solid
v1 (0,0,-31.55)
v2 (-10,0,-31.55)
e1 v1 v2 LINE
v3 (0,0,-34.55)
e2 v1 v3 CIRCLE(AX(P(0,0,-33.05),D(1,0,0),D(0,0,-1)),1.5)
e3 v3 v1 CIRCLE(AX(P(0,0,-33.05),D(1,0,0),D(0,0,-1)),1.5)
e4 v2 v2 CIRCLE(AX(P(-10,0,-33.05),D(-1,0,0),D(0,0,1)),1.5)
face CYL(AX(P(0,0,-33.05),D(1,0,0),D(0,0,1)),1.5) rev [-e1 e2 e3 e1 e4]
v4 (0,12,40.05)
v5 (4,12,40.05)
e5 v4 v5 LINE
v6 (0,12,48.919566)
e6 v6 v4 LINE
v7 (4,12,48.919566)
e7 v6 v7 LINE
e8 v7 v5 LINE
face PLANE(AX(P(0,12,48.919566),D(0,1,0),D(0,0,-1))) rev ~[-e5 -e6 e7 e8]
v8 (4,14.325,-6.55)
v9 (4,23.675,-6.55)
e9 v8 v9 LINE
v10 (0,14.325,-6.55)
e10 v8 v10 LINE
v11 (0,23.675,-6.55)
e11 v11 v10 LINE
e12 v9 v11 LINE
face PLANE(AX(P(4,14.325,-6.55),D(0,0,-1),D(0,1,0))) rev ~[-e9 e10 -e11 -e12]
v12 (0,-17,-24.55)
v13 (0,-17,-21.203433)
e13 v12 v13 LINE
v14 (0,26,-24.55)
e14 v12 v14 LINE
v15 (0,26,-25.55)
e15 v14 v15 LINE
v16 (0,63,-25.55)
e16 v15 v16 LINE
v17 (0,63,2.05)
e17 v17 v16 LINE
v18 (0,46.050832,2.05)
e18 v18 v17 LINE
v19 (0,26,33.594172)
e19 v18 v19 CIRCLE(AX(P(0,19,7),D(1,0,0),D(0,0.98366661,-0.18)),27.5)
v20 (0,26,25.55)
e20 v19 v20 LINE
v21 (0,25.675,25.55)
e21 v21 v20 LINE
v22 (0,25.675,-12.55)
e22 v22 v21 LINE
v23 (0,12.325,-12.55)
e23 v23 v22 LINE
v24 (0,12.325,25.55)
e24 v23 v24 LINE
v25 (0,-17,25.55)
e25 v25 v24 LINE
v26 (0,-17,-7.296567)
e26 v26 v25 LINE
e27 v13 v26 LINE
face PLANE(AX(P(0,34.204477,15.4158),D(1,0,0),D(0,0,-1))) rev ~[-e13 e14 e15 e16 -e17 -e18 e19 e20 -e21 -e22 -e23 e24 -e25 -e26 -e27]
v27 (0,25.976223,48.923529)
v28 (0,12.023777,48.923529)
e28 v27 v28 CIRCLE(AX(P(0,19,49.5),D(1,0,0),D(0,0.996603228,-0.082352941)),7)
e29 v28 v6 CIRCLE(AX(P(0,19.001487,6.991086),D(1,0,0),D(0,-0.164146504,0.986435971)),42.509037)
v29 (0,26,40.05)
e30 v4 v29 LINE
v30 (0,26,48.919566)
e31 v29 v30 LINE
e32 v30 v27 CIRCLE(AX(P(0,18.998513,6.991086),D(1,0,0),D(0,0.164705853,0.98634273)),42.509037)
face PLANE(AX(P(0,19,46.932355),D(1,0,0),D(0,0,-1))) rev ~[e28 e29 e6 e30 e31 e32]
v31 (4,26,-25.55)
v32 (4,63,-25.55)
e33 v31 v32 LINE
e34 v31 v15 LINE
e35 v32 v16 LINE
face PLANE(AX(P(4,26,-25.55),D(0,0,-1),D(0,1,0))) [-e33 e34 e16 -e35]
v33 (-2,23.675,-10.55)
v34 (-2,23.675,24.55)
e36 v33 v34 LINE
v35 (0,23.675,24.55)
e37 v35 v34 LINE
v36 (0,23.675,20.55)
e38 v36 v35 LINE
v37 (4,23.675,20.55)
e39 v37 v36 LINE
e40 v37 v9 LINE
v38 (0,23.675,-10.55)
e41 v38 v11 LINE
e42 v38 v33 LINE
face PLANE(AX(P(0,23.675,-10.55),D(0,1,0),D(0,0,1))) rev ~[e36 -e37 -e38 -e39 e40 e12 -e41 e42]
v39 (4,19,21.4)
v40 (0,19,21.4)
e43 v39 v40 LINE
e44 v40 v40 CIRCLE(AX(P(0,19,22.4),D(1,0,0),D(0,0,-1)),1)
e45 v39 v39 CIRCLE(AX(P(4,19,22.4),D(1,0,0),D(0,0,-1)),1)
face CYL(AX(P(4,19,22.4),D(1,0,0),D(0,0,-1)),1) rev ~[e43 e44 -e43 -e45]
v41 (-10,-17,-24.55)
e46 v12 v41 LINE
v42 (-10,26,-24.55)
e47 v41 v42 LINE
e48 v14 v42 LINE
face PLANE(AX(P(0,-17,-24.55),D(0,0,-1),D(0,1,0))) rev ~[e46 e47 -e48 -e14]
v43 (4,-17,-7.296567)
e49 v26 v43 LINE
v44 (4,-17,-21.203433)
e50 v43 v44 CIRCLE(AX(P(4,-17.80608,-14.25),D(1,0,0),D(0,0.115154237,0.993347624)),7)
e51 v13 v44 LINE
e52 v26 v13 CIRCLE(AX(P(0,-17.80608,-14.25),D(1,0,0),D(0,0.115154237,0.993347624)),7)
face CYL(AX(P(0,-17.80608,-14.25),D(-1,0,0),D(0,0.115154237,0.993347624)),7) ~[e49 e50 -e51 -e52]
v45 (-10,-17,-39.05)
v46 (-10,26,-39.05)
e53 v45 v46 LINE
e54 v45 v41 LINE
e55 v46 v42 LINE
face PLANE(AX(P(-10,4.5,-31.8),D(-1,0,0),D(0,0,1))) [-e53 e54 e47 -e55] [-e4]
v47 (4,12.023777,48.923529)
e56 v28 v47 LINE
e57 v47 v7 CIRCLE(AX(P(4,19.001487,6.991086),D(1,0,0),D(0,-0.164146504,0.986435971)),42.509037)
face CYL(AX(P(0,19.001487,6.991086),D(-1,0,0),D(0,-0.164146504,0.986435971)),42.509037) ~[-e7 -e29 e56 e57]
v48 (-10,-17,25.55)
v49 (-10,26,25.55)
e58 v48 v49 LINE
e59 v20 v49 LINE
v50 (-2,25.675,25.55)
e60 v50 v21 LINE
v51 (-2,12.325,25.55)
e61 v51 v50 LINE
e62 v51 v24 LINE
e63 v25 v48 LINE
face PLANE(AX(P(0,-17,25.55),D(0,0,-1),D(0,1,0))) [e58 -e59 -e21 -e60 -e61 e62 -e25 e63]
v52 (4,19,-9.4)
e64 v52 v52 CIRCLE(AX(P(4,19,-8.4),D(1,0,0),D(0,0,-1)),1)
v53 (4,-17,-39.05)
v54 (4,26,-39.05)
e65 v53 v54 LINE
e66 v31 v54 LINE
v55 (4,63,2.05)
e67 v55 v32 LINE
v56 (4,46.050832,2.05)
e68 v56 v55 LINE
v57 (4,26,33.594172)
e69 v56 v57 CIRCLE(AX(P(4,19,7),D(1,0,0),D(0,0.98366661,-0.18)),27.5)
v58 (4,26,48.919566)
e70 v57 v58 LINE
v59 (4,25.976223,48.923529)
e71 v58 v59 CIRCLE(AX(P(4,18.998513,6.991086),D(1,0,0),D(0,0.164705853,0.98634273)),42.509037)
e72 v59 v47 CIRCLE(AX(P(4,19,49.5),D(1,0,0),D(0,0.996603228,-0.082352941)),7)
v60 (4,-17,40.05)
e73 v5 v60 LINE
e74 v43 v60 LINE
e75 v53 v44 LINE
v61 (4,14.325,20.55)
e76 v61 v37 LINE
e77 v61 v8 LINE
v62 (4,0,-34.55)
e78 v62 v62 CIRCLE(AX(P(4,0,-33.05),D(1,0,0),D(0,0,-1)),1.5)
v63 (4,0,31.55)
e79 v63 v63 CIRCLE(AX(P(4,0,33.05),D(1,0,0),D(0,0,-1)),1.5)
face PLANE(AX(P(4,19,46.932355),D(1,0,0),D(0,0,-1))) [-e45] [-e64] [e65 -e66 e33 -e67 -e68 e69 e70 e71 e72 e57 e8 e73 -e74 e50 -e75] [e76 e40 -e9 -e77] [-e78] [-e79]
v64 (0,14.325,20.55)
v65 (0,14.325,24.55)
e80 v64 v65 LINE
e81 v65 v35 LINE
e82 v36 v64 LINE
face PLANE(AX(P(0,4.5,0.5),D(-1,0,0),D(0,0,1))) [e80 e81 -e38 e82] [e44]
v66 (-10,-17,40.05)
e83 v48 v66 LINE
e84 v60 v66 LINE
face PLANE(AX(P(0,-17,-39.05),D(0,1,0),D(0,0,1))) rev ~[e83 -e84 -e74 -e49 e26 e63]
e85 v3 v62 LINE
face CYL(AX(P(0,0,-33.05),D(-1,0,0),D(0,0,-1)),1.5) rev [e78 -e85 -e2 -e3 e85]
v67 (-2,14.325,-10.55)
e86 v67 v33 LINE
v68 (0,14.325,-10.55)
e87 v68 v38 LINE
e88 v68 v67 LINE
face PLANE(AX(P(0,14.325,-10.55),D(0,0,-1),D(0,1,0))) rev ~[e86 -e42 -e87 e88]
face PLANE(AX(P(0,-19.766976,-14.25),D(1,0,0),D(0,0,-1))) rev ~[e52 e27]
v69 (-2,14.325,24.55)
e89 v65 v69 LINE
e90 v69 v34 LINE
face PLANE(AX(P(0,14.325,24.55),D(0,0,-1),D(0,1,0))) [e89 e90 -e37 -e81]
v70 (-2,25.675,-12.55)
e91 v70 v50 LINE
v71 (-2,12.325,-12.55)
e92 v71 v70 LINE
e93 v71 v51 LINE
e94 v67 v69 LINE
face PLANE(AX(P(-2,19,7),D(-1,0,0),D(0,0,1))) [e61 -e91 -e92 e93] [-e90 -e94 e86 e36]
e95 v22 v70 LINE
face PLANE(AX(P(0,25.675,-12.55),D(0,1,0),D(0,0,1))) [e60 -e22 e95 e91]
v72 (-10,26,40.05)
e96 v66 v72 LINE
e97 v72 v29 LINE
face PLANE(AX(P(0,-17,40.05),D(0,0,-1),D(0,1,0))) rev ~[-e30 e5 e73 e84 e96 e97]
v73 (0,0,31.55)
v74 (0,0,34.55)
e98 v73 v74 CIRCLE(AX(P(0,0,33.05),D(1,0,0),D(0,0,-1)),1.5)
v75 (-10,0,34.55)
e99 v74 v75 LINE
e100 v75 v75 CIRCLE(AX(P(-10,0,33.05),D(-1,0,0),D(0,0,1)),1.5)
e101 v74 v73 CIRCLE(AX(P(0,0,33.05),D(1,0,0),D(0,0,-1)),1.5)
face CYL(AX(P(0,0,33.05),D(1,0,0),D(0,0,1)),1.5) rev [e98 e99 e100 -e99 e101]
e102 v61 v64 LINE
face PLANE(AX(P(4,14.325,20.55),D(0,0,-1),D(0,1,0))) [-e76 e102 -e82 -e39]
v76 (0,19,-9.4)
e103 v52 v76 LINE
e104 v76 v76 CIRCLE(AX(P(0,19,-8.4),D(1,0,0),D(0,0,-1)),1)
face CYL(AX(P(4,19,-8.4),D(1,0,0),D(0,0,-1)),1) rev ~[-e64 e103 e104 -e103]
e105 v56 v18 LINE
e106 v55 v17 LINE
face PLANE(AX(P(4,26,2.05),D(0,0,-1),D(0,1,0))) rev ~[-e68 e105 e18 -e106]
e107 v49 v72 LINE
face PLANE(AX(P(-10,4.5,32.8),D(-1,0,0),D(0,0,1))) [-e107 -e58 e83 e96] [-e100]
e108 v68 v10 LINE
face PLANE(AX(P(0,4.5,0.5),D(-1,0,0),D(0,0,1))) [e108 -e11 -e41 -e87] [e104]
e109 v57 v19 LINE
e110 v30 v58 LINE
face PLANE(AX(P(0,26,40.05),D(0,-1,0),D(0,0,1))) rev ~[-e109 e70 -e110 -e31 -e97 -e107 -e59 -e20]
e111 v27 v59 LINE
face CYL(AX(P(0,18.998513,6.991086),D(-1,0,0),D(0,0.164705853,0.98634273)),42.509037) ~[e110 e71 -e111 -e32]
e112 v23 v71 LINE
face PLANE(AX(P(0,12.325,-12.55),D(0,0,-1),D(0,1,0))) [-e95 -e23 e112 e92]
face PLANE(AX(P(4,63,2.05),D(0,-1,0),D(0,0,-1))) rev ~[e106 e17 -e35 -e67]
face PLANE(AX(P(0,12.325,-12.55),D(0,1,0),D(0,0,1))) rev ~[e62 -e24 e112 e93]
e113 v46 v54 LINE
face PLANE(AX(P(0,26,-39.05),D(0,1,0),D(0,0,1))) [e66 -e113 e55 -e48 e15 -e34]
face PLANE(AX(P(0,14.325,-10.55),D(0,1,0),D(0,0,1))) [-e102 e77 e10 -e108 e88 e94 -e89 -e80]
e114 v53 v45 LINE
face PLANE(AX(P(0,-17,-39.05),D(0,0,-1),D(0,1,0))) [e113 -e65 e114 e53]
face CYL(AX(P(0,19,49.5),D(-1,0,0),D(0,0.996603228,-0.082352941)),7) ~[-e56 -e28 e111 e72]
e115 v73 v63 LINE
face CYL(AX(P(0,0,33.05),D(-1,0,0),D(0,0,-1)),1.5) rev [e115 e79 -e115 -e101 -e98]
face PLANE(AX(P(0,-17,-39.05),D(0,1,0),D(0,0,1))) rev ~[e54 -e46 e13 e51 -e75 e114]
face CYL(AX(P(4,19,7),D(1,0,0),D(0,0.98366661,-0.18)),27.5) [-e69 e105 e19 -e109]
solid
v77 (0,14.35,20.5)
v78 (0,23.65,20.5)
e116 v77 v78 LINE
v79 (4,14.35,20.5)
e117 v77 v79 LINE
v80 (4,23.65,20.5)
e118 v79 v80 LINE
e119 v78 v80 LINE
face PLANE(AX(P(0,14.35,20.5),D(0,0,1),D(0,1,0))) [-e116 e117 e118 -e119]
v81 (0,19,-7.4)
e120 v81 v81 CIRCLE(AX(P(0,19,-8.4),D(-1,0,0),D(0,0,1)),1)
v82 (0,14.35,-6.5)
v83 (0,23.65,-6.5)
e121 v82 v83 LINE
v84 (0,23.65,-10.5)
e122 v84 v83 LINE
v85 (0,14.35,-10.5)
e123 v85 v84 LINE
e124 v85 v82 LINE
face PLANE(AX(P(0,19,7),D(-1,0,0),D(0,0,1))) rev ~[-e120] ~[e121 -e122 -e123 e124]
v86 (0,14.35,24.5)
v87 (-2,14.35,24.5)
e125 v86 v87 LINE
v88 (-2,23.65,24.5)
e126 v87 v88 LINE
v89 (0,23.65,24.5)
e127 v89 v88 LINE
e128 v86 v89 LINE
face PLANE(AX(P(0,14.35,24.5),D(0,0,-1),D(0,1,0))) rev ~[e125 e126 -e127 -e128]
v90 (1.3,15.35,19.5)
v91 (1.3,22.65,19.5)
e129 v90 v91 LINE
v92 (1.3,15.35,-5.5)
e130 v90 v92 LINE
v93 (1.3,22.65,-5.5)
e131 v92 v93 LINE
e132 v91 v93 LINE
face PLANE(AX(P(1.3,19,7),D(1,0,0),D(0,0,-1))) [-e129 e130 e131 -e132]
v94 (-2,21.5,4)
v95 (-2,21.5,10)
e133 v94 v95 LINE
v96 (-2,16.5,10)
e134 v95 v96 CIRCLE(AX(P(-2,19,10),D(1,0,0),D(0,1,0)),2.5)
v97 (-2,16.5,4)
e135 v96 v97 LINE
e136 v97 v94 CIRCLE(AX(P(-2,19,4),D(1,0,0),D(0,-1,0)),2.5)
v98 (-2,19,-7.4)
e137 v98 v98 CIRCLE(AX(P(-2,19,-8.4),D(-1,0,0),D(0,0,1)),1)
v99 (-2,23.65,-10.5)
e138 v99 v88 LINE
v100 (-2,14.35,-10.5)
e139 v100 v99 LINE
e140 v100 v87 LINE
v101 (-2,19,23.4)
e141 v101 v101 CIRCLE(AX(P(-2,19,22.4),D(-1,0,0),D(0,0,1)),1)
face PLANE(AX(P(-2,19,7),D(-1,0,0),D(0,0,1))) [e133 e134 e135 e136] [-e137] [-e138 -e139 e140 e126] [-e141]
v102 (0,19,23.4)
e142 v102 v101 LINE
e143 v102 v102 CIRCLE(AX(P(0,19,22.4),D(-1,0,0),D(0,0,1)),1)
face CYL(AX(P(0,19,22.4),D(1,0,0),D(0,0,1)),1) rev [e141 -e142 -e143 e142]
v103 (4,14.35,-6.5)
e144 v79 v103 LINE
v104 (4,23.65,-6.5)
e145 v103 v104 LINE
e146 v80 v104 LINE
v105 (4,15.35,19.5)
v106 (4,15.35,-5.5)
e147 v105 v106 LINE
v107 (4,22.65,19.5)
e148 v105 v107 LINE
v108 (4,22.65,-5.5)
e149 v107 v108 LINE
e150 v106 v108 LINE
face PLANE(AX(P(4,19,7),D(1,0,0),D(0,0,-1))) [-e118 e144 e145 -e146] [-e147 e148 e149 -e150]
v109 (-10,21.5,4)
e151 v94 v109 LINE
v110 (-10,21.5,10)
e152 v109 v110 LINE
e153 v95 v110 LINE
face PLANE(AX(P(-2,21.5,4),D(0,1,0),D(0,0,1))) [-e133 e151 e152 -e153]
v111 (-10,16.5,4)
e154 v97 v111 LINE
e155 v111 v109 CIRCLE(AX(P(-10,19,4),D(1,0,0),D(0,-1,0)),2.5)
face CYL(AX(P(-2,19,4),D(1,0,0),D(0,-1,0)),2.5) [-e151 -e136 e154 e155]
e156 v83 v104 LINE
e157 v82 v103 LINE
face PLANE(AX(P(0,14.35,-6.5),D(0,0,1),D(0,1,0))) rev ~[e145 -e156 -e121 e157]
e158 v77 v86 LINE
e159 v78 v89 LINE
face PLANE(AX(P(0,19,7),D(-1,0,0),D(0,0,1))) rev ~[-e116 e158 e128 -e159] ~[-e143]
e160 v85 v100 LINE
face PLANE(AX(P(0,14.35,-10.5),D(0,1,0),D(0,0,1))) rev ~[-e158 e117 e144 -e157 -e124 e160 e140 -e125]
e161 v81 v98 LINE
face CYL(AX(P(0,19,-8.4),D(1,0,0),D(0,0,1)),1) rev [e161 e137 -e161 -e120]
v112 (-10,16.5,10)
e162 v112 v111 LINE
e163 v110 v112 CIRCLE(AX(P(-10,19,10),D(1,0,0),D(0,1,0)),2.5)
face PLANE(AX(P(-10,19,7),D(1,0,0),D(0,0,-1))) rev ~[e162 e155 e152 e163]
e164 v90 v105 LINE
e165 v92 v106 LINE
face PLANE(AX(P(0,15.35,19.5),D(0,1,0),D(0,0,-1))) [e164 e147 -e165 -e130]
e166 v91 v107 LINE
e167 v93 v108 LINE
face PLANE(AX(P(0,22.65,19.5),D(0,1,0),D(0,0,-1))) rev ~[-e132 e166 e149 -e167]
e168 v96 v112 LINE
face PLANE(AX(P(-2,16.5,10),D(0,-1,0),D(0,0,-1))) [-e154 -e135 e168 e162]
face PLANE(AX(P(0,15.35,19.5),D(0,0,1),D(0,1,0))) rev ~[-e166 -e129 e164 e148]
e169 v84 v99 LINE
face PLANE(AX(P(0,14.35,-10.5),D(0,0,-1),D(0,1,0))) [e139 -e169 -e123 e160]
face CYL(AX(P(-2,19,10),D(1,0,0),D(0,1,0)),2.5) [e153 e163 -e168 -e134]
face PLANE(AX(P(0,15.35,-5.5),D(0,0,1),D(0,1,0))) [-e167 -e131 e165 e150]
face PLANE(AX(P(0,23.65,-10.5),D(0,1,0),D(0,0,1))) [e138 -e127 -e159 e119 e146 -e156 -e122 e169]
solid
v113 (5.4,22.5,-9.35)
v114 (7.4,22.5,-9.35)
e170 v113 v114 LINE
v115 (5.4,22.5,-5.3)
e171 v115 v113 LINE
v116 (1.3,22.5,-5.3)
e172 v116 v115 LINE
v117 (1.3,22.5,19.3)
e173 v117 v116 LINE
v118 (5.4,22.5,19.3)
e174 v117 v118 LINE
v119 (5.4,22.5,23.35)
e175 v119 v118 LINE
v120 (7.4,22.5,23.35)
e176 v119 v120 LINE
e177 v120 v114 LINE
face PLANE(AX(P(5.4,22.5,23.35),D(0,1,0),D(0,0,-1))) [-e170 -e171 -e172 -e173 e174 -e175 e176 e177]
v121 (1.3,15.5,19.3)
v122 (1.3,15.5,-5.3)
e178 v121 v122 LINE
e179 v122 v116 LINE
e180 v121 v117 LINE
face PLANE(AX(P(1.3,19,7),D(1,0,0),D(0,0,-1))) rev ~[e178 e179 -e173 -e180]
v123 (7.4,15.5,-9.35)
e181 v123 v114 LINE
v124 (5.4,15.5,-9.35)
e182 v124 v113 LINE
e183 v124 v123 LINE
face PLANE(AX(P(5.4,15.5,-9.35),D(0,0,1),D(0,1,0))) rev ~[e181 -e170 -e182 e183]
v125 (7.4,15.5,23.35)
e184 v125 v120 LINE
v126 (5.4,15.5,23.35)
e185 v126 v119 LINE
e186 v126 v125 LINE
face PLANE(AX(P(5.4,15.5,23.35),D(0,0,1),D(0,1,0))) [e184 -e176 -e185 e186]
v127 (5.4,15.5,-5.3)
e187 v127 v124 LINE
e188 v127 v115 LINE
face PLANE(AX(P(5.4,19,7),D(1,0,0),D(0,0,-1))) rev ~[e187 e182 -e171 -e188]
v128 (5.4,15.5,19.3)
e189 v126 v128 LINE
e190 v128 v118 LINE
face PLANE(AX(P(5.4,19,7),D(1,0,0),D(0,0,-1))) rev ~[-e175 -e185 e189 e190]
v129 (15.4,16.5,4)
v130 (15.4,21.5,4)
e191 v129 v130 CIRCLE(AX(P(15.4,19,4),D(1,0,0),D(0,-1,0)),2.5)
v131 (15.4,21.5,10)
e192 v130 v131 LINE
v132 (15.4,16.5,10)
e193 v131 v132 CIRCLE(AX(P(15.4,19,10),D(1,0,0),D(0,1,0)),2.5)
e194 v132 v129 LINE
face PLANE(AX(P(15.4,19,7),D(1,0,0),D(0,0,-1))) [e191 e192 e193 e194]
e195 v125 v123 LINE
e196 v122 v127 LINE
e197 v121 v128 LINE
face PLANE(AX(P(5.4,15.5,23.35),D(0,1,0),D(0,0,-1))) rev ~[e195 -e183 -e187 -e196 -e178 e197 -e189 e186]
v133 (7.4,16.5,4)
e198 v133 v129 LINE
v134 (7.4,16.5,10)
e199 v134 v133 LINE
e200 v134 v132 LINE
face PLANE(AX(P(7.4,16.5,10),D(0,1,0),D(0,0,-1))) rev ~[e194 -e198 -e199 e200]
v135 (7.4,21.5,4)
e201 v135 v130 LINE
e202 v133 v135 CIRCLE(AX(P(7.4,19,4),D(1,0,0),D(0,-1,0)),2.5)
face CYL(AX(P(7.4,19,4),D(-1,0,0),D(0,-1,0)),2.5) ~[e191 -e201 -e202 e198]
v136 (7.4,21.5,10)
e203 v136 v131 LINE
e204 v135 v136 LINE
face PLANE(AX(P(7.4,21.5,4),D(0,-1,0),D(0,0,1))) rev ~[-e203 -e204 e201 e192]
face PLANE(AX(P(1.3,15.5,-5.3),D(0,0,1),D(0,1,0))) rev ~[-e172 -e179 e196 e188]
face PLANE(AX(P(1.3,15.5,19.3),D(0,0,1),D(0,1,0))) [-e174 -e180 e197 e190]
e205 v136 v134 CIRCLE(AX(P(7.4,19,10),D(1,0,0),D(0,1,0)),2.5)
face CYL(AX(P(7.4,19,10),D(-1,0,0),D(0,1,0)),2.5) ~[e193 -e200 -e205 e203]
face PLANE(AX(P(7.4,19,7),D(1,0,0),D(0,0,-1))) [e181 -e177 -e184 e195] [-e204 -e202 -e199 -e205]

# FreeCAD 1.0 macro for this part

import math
import FreeCAD as App
import Part
import Sketcher
Q = App.Units.Quantity

doc = App.newDocument("Part")
body = doc.addObject("PartDesign::Body", "Body")

sketch1 = doc.addObject("Sketcher::SketchObject", "Sketch")
body.addObject(sketch1)
sketch1.AttachmentSupport = (doc.YZ_Plane, [""])
sketch1.MapMode = "FlatFace"
sketch1.addGeometry(Part.LineSegment(App.Vector(-17, -39, 0), App.Vector(26, -39, 0)), False)
sketch1.addGeometry(Part.LineSegment(App.Vector(26, -39, 0), App.Vector(26, 40, 0)), False)
sketch1.addGeometry(Part.LineSegment(App.Vector(26, 40, 0), App.Vector(-17, 40, 0)), False)
sketch1.addGeometry(Part.LineSegment(App.Vector(-17, 40, 0), App.Vector(-17, -39, 0)), False)
sketch1.addGeometry(Part.Circle(App.Vector(0, -33, 0), App.Vector(0, 0, 1), 1.5), False)
sketch1.addGeometry(Part.Circle(App.Vector(0, 33, 0), App.Vector(0, 0, 1), 1.5), False)
sketch1.addConstraint(Sketcher.Constraint("Coincident", 0, 2, 1, 1))
sketch1.addConstraint(Sketcher.Constraint("Coincident", 1, 2, 2, 1))
sketch1.addConstraint(Sketcher.Constraint("Coincident", 2, 2, 3, 1))
sketch1.addConstraint(Sketcher.Constraint("Coincident", 3, 2, 0, 1))
sketch1.addConstraint(Sketcher.Constraint("Horizontal", 0))
sketch1.addConstraint(Sketcher.Constraint("Vertical", 1))
sketch1.addConstraint(Sketcher.Constraint("Horizontal", 2))
sketch1.addConstraint(Sketcher.Constraint("Vertical", 3))
sketch1.addConstraint(Sketcher.Constraint("Equal", 4, 5))
sketch1.addConstraint(Sketcher.Constraint("Symmetric", 4, 3, 5, 3, -1, 1))
sketch1.addConstraint(Sketcher.Constraint("PointOnObject", 4, 3, -2))
sketch1.addConstraint(Sketcher.Constraint("Diameter", 4, Q("3 mm")))
sketch1.addConstraint(Sketcher.Constraint("DistanceX", 0, 1, 0, 2, Q("43 mm")))
sketch1.addConstraint(Sketcher.Constraint("DistanceY", 1, 1, 1, 2, Q("79.1 mm")))
sketch1.addConstraint(Sketcher.Constraint("DistanceX", -1, 1, 0, 2, Q("26 mm")))
sketch1.addConstraint(Sketcher.Constraint("DistanceY", 0, 2, 4, 3, Q("6 mm")))
sketch1.addConstraint(Sketcher.Constraint("DistanceY", 5, 3, 1, 2, Q("7 mm")))
pad1 = doc.addObject("PartDesign::Pad", "Pad")
body.addObject(pad1)
pad1.Profile = sketch1
pad1.Length = 4

sketch2 = doc.addObject("Sketcher::SketchObject", "Sketch001")
body.addObject(sketch2)
sketch2.AttachmentSupport = (doc.YZ_Plane, [""])
sketch2.MapMode = "FlatFace"
sketch2.AttachmentOffset = App.Placement(App.Vector(0, 0, 4), App.Rotation())
sketch2.addGeometry(Part.LineSegment(App.Vector(24, 21, 0), App.Vector(14, 21, 0)), False)
sketch2.addGeometry(Part.LineSegment(App.Vector(14, 21, 0), App.Vector(14, -7, 0)), False)
sketch2.addGeometry(Part.LineSegment(App.Vector(14, -7, 0), App.Vector(24, -7, 0)), False)
sketch2.addGeometry(Part.LineSegment(App.Vector(24, -7, 0), App.Vector(24, 21, 0)), False)
sketch2.addConstraint(Sketcher.Constraint("Coincident", 0, 2, 1, 1))
sketch2.addConstraint(Sketcher.Constraint("Coincident", 1, 2, 2, 1))
sketch2.addConstraint(Sketcher.Constraint("Coincident", 2, 2, 3, 1))
sketch2.addConstraint(Sketcher.Constraint("Coincident", 3, 2, 0, 1))
sketch2.addConstraint(Sketcher.Constraint("Horizontal", 0))
sketch2.addConstraint(Sketcher.Constraint("Vertical", 1))
sketch2.addConstraint(Sketcher.Constraint("Horizontal", 2))
sketch2.addConstraint(Sketcher.Constraint("Vertical", 3))
sketch2.addConstraint(Sketcher.Constraint("DistanceY", 1, 2, 1, 1, Q("27.1 mm")))
sketch2.addConstraint(Sketcher.Constraint("DistanceX", 0, 2, 0, 1, Q("9.35 mm")))
sketch2.addConstraint(Sketcher.Constraint("DistanceY", -1, 1, 0, 2, Q("20.55 mm")))
sketch2.addConstraint(Sketcher.Constraint("DistanceX", -1, 1, 0, 2, Q("14.325 mm")))
pocket1 = doc.addObject("PartDesign::Pocket", "Pocket")
body.addObject(pocket1)
pocket1.Profile = sketch2
pocket1.Type = "ThroughAll"

sketch3 = doc.addObject("Sketcher::SketchObject", "Sketch002")
body.addObject(sketch3)
sketch3.AttachmentSupport = (doc.YZ_Plane, [""])
sketch3.MapMode = "FlatFace"
sketch3.AttachmentOffset = App.Placement(App.Vector(0, 0, 4), App.Rotation())
sketch3.addGeometry(Part.Circle(App.Vector(19, 22.4, 0), App.Vector(0, 0, 1), 1), False)
sketch3.addGeometry(Part.Circle(App.Vector(19, -8.4, 0), App.Vector(0, 0, 1), 1), False)
sketch3.addConstraint(Sketcher.Constraint("Equal", 0, 1))
sketch3.addConstraint(Sketcher.Constraint("Vertical", 0, 3, 1, 3))
sketch3.addConstraint(Sketcher.Constraint("Diameter", 0, Q("2 mm")))
sketch3.addConstraint(Sketcher.Constraint("DistanceX", -1, 1, 0, 3, Q("19 mm")))
sketch3.addConstraint(Sketcher.Constraint("DistanceY", -1, 1, 0, 3, Q("22.4 mm")))
sketch3.addConstraint(Sketcher.Constraint("DistanceY", 1, 3, -1, 1, Q("8.4 mm")))
pocket2 = doc.addObject("PartDesign::Pocket", "Pocket001")
body.addObject(pocket2)
pocket2.Profile = sketch3
pocket2.Type = "ThroughAll"

sketch4 = doc.addObject("Sketcher::SketchObject", "Sketch003")
body.addObject(sketch4)
sketch4.AttachmentSupport = (doc.YZ_Plane, [""])
sketch4.MapMode = "FlatFace"
sketch4.addGeometry(Part.LineSegment(App.Vector(26, -39, 0), App.Vector(-17, -39, 0)), False)
sketch4.addGeometry(Part.LineSegment(App.Vector(-17, -39, 0), App.Vector(-17, -24.6, 0)), False)
sketch4.addGeometry(Part.LineSegment(App.Vector(-17, -24.6, 0), App.Vector(26, -24.6, 0)), False)
sketch4.addGeometry(Part.LineSegment(App.Vector(26, -24.6, 0), App.Vector(26, -39, 0)), False)
sketch4.addGeometry(Part.Circle(App.Vector(0, -33, 0), App.Vector(0, 0, 1), 1.5), False)
sketch4.addGeometry(Part.LineSegment(App.Vector(26, 25.6, 0), App.Vector(-17, 25.6, 0)), False)
sketch4.addGeometry(Part.LineSegment(App.Vector(-17, 25.6, 0), App.Vector(-17, 40, 0)), False)
sketch4.addGeometry(Part.LineSegment(App.Vector(-17, 40, 0), App.Vector(26, 40, 0)), False)
sketch4.addGeometry(Part.LineSegment(App.Vector(26, 40, 0), App.Vector(26, 25.6, 0)), False)
sketch4.addGeometry(Part.Circle(App.Vector(0, 33, 0), App.Vector(0, 0, 1), 1.5), False)
sketch4.addConstraint(Sketcher.Constraint("Coincident", 0, 2, 1, 1))
sketch4.addConstraint(Sketcher.Constraint("Coincident", 1, 2, 2, 1))
sketch4.addConstraint(Sketcher.Constraint("Coincident", 2, 2, 3, 1))
sketch4.addConstraint(Sketcher.Constraint("Coincident", 3, 2, 0, 1))
sketch4.addConstraint(Sketcher.Constraint("Coincident", 5, 2, 6, 1))
sketch4.addConstraint(Sketcher.Constraint("Coincident", 6, 2, 7, 1))
sketch4.addConstraint(Sketcher.Constraint("Coincident", 7, 2, 8, 1))
sketch4.addConstraint(Sketcher.Constraint("Coincident", 8, 2, 5, 1))
sketch4.addConstraint(Sketcher.Constraint("Horizontal", 0))
sketch4.addConstraint(Sketcher.Constraint("Vertical", 1))
sketch4.addConstraint(Sketcher.Constraint("Horizontal", 2))
sketch4.addConstraint(Sketcher.Constraint("Vertical", 3))
sketch4.addConstraint(Sketcher.Constraint("Horizontal", 5))
sketch4.addConstraint(Sketcher.Constraint("Vertical", 6))
sketch4.addConstraint(Sketcher.Constraint("Horizontal", 7))
sketch4.addConstraint(Sketcher.Constraint("Vertical", 8))
sketch4.addConstraint(Sketcher.Constraint("Equal", 4, 9))
sketch4.addConstraint(Sketcher.Constraint("Symmetric", 4, 3, 9, 3, -1, 1))
sketch4.addConstraint(Sketcher.Constraint("PointOnObject", 4, 3, -2))
sketch4.addConstraint(Sketcher.Constraint("Vertical", 1, 2, 5, 2))
sketch4.addConstraint(Sketcher.Constraint("Vertical", 3, 2, 7, 2))
sketch4.addConstraint(Sketcher.Constraint("Equal", 3, 6))
sketch4.addConstraint(Sketcher.Constraint("Diameter", 4, Q("3 mm")))
sketch4.addConstraint(Sketcher.Constraint("DistanceX", 0, 2, 0, 1, Q("43 mm")))
sketch4.addConstraint(Sketcher.Constraint("DistanceY", 1, 1, 1, 2, Q("14.5 mm")))
sketch4.addConstraint(Sketcher.Constraint("DistanceX", 0, 2, -1, 1, Q("17 mm")))
sketch4.addConstraint(Sketcher.Constraint("DistanceY", 0, 2, 4, 3, Q("6 mm")))
sketch4.addConstraint(Sketcher.Constraint("DistanceY", 9, 3, 6, 2, Q("7 mm")))
sketch4.addConstraint(Sketcher.Constraint("DistanceY", 4, 3, 9, 3, Q("66.1 mm")))
pad2 = doc.addObject("PartDesign::Pad", "Pad001")
body.addObject(pad2)
pad2.Profile = sketch4
pad2.Length = 10
pad2.Reversed = True

sketch5 = doc.addObject("Sketcher::SketchObject", "Sketch004")
body.addObject(sketch5)
sketch5.AttachmentSupport = (doc.YZ_Plane, [""])
sketch5.MapMode = "FlatFace"
sketch5.addGeometry(Part.LineSegment(App.Vector(26, -13, 0), App.Vector(12, -13, 0)), False)
sketch5.addGeometry(Part.LineSegment(App.Vector(12, -13, 0), App.Vector(12, 27, 0)), False)
sketch5.addGeometry(Part.LineSegment(App.Vector(12, 27, 0), App.Vector(26, 27, 0)), False)
sketch5.addGeometry(Part.LineSegment(App.Vector(26, 27, 0), App.Vector(26, -13, 0)), False)
sketch5.addGeometry(Part.LineSegment(App.Vector(14, 25, 0), App.Vector(14, -11, 0)), False)
sketch5.addGeometry(Part.LineSegment(App.Vector(14, -11, 0), App.Vector(24, -11, 0)), False)
sketch5.addGeometry(Part.LineSegment(App.Vector(24, -11, 0), App.Vector(24, 25, 0)), False)
sketch5.addGeometry(Part.LineSegment(App.Vector(24, 25, 0), App.Vector(14, 25, 0)), False)
sketch5.addConstraint(Sketcher.Constraint("Coincident", 0, 2, 1, 1))
sketch5.addConstraint(Sketcher.Constraint("Coincident", 1, 2, 2, 1))
sketch5.addConstraint(Sketcher.Constraint("Coincident", 2, 2, 3, 1))
sketch5.addConstraint(Sketcher.Constraint("Coincident", 3, 2, 0, 1))
sketch5.addConstraint(Sketcher.Constraint("Coincident", 4, 2, 5, 1))
sketch5.addConstraint(Sketcher.Constraint("Coincident", 5, 2, 6, 1))
sketch5.addConstraint(Sketcher.Constraint("Coincident", 6, 2, 7, 1))
sketch5.addConstraint(Sketcher.Constraint("Coincident", 7, 2, 4, 1))
sketch5.addConstraint(Sketcher.Constraint("Horizontal", 0))
sketch5.addConstraint(Sketcher.Constraint("Vertical", 1))
sketch5.addConstraint(Sketcher.Constraint("Horizontal", 2))
sketch5.addConstraint(Sketcher.Constraint("Vertical", 3))
sketch5.addConstraint(Sketcher.Constraint("Vertical", 4))
sketch5.addConstraint(Sketcher.Constraint("Horizontal", 5))
sketch5.addConstraint(Sketcher.Constraint("Vertical", 6))
sketch5.addConstraint(Sketcher.Constraint("Horizontal", 7))
sketch5.addConstraint(Sketcher.Constraint("DistanceY", 1, 1, 1, 2, Q("39.1 mm")))
sketch5.addConstraint(Sketcher.Constraint("DistanceY", 4, 2, 4, 1, Q("35.1 mm")))
sketch5.addConstraint(Sketcher.Constraint("DistanceX", 0, 2, 4, 2, Q("2 mm")))
sketch5.addConstraint(Sketcher.Constraint("DistanceY", 0, 2, 4, 2, Q("2 mm")))
sketch5.addConstraint(Sketcher.Constraint("DistanceX", 5, 2, 3, 2, Q("2 mm")))
sketch5.addConstraint(Sketcher.Constraint("DistanceX", 0, 2, 0, 1, Q("13.35 mm")))
sketch5.addConstraint(Sketcher.Constraint("DistanceY", 0, 2, -1, 1, Q("12.55 mm")))
sketch5.addConstraint(Sketcher.Constraint("DistanceX", -1, 1, 0, 2, Q("12.325 mm")))
pad3 = doc.addObject("PartDesign::Pad", "Pad002")
body.addObject(pad3)
pad3.Profile = sketch5
pad3.Length = 2
pad3.Reversed = True

sketch6 = doc.addObject("Sketcher::SketchObject", "Sketch005")
body.addObject(sketch6)
sketch6.AttachmentSupport = (doc.YZ_Plane, [""])
sketch6.MapMode = "FlatFace"
sketch6.AttachmentOffset = App.Placement(App.Vector(0, 0, 4), App.Rotation())
sketch6.addGeometry(Part.LineSegment(App.Vector(63, 2, 0), App.Vector(26, 2, 0)), False)
sketch6.addGeometry(Part.LineSegment(App.Vector(26, 2, 0), App.Vector(26, -26, 0)), False)
sketch6.addGeometry(Part.LineSegment(App.Vector(26, -26, 0), App.Vector(63, -26, 0)), False)
sketch6.addGeometry(Part.LineSegment(App.Vector(63, -26, 0), App.Vector(63, 2, 0)), False)
sketch6.addConstraint(Sketcher.Constraint("Coincident", 0, 2, 1, 1))
sketch6.addConstraint(Sketcher.Constraint("Coincident", 1, 2, 2, 1))
sketch6.addConstraint(Sketcher.Constraint("Coincident", 2, 2, 3, 1))
sketch6.addConstraint(Sketcher.Constraint("Coincident", 3, 2, 0, 1))
sketch6.addConstraint(Sketcher.Constraint("Horizontal", 0))
sketch6.addConstraint(Sketcher.Constraint("Vertical", 1))
sketch6.addConstraint(Sketcher.Constraint("Horizontal", 2))
sketch6.addConstraint(Sketcher.Constraint("Vertical", 3))
sketch6.addConstraint(Sketcher.Constraint("DistanceX", 0, 2, 0, 1, Q("37 mm")))
sketch6.addConstraint(Sketcher.Constraint("DistanceY", 1, 2, 1, 1, Q("27.6 mm")))
sketch6.addConstraint(Sketcher.Constraint("DistanceX", -1, 1, 0, 2, Q("26 mm")))
sketch6.addConstraint(Sketcher.Constraint("DistanceY", -1, 1, 0, 2, Q("2.05 mm")))
pad4 = doc.addObject("PartDesign::Pad", "Pad003")
body.addObject(pad4)
pad4.Profile = sketch6
pad4.Length = 4
pad4.Reversed = True

sketch7 = doc.addObject("Sketcher::SketchObject", "Sketch006")
body.addObject(sketch7)
sketch7.AttachmentSupport = (doc.YZ_Plane, [""])
sketch7.MapMode = "FlatFace"
sketch7.AttachmentOffset = App.Placement(App.Vector(0, 0, 4), App.Rotation())
sketch7.addGeometry(Part.LineSegment(App.Vector(26, 34, 0), App.Vector(26, 2, 0)), False)
sketch7.addGeometry(Part.LineSegment(App.Vector(26, 2, 0), App.Vector(46, 2, 0)), False)
sketch7.addGeometry(Part.ArcOfCircle(Part.Circle(App.Vector(19, 7, 0), App.Vector(0, 0, 1), 27), math.radians(-10), math.radians(75)), False)
sketch7.addConstraint(Sketcher.Constraint("Coincident", 0, 2, 1, 1))
sketch7.addConstraint(Sketcher.Constraint("Coincident", 1, 2, 2, 1))
sketch7.addConstraint(Sketcher.Constraint("Coincident", 2, 2, 0, 1))
sketch7.addConstraint(Sketcher.Constraint("Vertical", 0))
sketch7.addConstraint(Sketcher.Constraint("Horizontal", 1))
sketch7.addConstraint(Sketcher.Constraint("Radius", 2, Q("27.5 mm")))
sketch7.addConstraint(Sketcher.Constraint("DistanceX", -1, 1, 2, 3, Q("19 mm")))
sketch7.addConstraint(Sketcher.Constraint("DistanceY", -1, 1, 2, 3, Q("7 mm")))
sketch7.addConstraint(Sketcher.Constraint("DistanceX", -1, 1, 0, 2, Q("26 mm")))
sketch7.addConstraint(Sketcher.Constraint("DistanceY", -1, 1, 0, 2, Q("2.05 mm")))
pad5 = doc.addObject("PartDesign::Pad", "Pad004")
body.addObject(pad5)
pad5.Profile = sketch7
pad5.Length = 4
pad5.Reversed = True

sketch8 = doc.addObject("Sketcher::SketchObject", "Sketch007")
body.addObject(sketch8)
sketch8.AttachmentSupport = (doc.YZ_Plane, [""])
sketch8.MapMode = "FlatFace"
sketch8.addGeometry(Part.ArcOfCircle(Part.Circle(App.Vector(19, 49.5, 0), App.Vector(0, 0, 1), 7), math.radians(-5), math.radians(185)), False)
sketch8.addGeometry(Part.ArcOfCircle(Part.Circle(App.Vector(19.001, 6.991, 0), App.Vector(0, 0, 1), 42.509), math.radians(99.45), math.radians(99.48)), False)
sketch8.addGeometry(Part.LineSegment(App.Vector(12, 48.92, 0), App.Vector(12, 40.05, 0)), False)
sketch8.addGeometry(Part.LineSegment(App.Vector(12, 40.05, 0), App.Vector(26, 40.05, 0)), False)
sketch8.addGeometry(Part.LineSegment(App.Vector(26, 40.05, 0), App.Vector(26, 48.92, 0)), False)
sketch8.addGeometry(Part.ArcOfCircle(Part.Circle(App.Vector(18.999, 6.991, 0), App.Vector(0, 0, 1), 42.509), math.radians(80.52), math.radians(80.55)), False)
sketch8.addGeometry(Part.ArcOfCircle(Part.Circle(App.Vector(-17.806, -14.25, 0), App.Vector(0, 0, 1), 7), math.radians(83), math.radians(277)), False)
sketch8.addGeometry(Part.LineSegment(App.Vector(-17, -21.203, 0), App.Vector(-17, -7.297, 0)), False)
sketch8.addConstraint(Sketcher.Constraint("Coincident", 0, 2, 1, 1))
sketch8.addConstraint(Sketcher.Constraint("Coincident", 1, 2, 2, 1))
sketch8.addConstraint(Sketcher.Constraint("Coincident", 2, 2, 3, 1))
sketch8.addConstraint(Sketcher.Constraint("Coincident", 3, 2, 4, 1))
sketch8.addConstraint(Sketcher.Constraint("Coincident", 4, 2, 5, 1))
sketch8.addConstraint(Sketcher.Constraint("Coincident", 5, 2, 0, 1))
sketch8.addConstraint(Sketcher.Constraint("Coincident", 6, 1, 7, 2))
sketch8.addConstraint(Sketcher.Constraint("Coincident", 7, 1, 6, 2))
sketch8.addConstraint(Sketcher.Constraint("Vertical", 2))
sketch8.addConstraint(Sketcher.Constraint("Horizontal", 3))
sketch8.addConstraint(Sketcher.Constraint("Vertical", 4))
sketch8.addConstraint(Sketcher.Constraint("Vertical", 7))
sketch8.addConstraint(Sketcher.Constraint("Equal", 1, 5))
sketch8.addConstraint(Sketcher.Constraint("Equal", 0, 6))
sketch8.addConstraint(Sketcher.Constraint("Horizontal", 1, 3, 5, 3))
sketch8.addConstraint(Sketcher.Constraint("Horizontal", 1, 2, 4, 2))
sketch8.addConstraint(Sketcher.Constraint("Horizontal", 0, 2, 5, 2))
sketch8.addConstraint(Sketcher.Constraint("Radius", 0, Q("7 mm")))
sketch8.addConstraint(Sketcher.Constraint("DistanceX", 3, 1, 3, 2, Q("14 mm")))
sketch8.addConstraint(Sketcher.Constraint("DistanceX", -1, 1, 0, 3, Q("19 mm")))
sketch8.addConstraint(Sketcher.Constraint("DistanceX", 6, 1, -1, 1, Q("17 mm")))
sketch8.addConstraint(Sketcher.Constraint("DistanceY", -1, 1, 0, 3, Q("49.5 mm")))
sketch8.addConstraint(Sketcher.Constraint("DistanceY", 6, 3, -1, 1, Q("14.25 mm")))
sketch8.addConstraint(Sketcher.Constraint("DistanceY", -1, 1, 2, 2, Q("40.05 mm")))
sketch8.addConstraint(Sketcher.Constraint("Radius", 1, Q("42.509037 mm")))
sketch8.addConstraint(Sketcher.Constraint("DistanceY", 2, 2, 2, 1, Q("8.869566 mm")))
sketch8.addConstraint(Sketcher.Constraint("DistanceY", 7, 1, 7, 2, Q("13.906867 mm")))
sketch8.addConstraint(Sketcher.Constraint("DistanceX", 0, 2, 1, 3, Q("6.97771 mm")))
pad6 = doc.addObject("PartDesign::Pad", "Pad005")
body.addObject(pad6)
pad6.Profile = sketch8
pad6.Length = 4
body2 = doc.addObject("PartDesign::Body", "Body001")

sketch9 = doc.addObject("Sketcher::SketchObject", "Sketch008")
body2.addObject(sketch9)
sketch9.AttachmentSupport = (doc.getObject("YZ_Plane001"), [""])
sketch9.MapMode = "FlatFace"
sketch9.addGeometry(Part.LineSegment(App.Vector(23.6, -10.5, 0), App.Vector(14.3, -10.5, 0)), False)
sketch9.addGeometry(Part.LineSegment(App.Vector(14.3, -10.5, 0), App.Vector(14.3, 24.5, 0)), False)
sketch9.addGeometry(Part.LineSegment(App.Vector(14.3, 24.5, 0), App.Vector(23.6, 24.5, 0)), False)
sketch9.addGeometry(Part.LineSegment(App.Vector(23.6, 24.5, 0), App.Vector(23.6, -10.5, 0)), False)
sketch9.addGeometry(Part.Circle(App.Vector(19, -8.4, 0), App.Vector(0, 0, 1), 1), False)
sketch9.addGeometry(Part.Circle(App.Vector(19, 22.4, 0), App.Vector(0, 0, 1), 1), False)
sketch9.addConstraint(Sketcher.Constraint("Coincident", 0, 2, 1, 1))
sketch9.addConstraint(Sketcher.Constraint("Coincident", 1, 2, 2, 1))
sketch9.addConstraint(Sketcher.Constraint("Coincident", 2, 2, 3, 1))
sketch9.addConstraint(Sketcher.Constraint("Coincident", 3, 2, 0, 1))
sketch9.addConstraint(Sketcher.Constraint("Horizontal", 0))
sketch9.addConstraint(Sketcher.Constraint("Vertical", 1))
sketch9.addConstraint(Sketcher.Constraint("Horizontal", 2))
sketch9.addConstraint(Sketcher.Constraint("Vertical", 3))
sketch9.addConstraint(Sketcher.Constraint("Equal", 4, 5))
sketch9.addConstraint(Sketcher.Constraint("Vertical", 4, 3, 5, 3))
sketch9.addConstraint(Sketcher.Constraint("Diameter", 4, Q("2 mm")))
sketch9.addConstraint(Sketcher.Constraint("DistanceY", 1, 1, 1, 2, Q("35 mm")))
sketch9.addConstraint(Sketcher.Constraint("DistanceX", 0, 2, 0, 1, Q("9.3 mm")))
sketch9.addConstraint(Sketcher.Constraint("DistanceX", -1, 1, 4, 3, Q("19 mm")))
sketch9.addConstraint(Sketcher.Constraint("DistanceY", 4, 3, -1, 1, Q("8.4 mm")))
sketch9.addConstraint(Sketcher.Constraint("DistanceY", -1, 1, 5, 3, Q("22.4 mm")))
sketch9.addConstraint(Sketcher.Constraint("DistanceY", 0, 2, -1, 1, Q("10.5 mm")))
sketch9.addConstraint(Sketcher.Constraint("DistanceX", -1, 1, 0, 2, Q("14.35 mm")))
pad7 = doc.addObject("PartDesign::Pad", "Pad006")
body2.addObject(pad7)
pad7.Profile = sketch9
pad7.Length = 2
pad7.Reversed = True

sketch10 = doc.addObject("Sketcher::SketchObject", "Sketch009")
body2.addObject(sketch10)
sketch10.AttachmentSupport = (doc.getObject("YZ_Plane001"), [""])
sketch10.MapMode = "FlatFace"
sketch10.addGeometry(Part.LineSegment(App.Vector(24, 20, 0), App.Vector(14, 20, 0)), False)
sketch10.addGeometry(Part.LineSegment(App.Vector(14, 20, 0), App.Vector(14, -6, 0)), False)
sketch10.addGeometry(Part.LineSegment(App.Vector(14, -6, 0), App.Vector(24, -6, 0)), False)
sketch10.addGeometry(Part.LineSegment(App.Vector(24, -6, 0), App.Vector(24, 20, 0)), False)
sketch10.addGeometry(Part.LineSegment(App.Vector(15, -6, 0), App.Vector(15, 20, 0)), False)
sketch10.addGeometry(Part.LineSegment(App.Vector(15, 20, 0), App.Vector(23, 20, 0)), False)
sketch10.addGeometry(Part.LineSegment(App.Vector(23, 20, 0), App.Vector(23, -6, 0)), False)
sketch10.addGeometry(Part.LineSegment(App.Vector(23, -6, 0), App.Vector(15, -6, 0)), False)
sketch10.addConstraint(Sketcher.Constraint("Coincident", 0, 2, 1, 1))
sketch10.addConstraint(Sketcher.Constraint("Coincident", 1, 2, 2, 1))
sketch10.addConstraint(Sketcher.Constraint("Coincident", 2, 2, 3, 1))
sketch10.addConstraint(Sketcher.Constraint("Coincident", 3, 2, 0, 1))
sketch10.addConstraint(Sketcher.Constraint("Coincident", 4, 2, 5, 1))
sketch10.addConstraint(Sketcher.Constraint("Coincident", 5, 2, 6, 1))
sketch10.addConstraint(Sketcher.Constraint("Coincident", 6, 2, 7, 1))
sketch10.addConstraint(Sketcher.Constraint("Coincident", 7, 2, 4, 1))
sketch10.addConstraint(Sketcher.Constraint("Horizontal", 0))
sketch10.addConstraint(Sketcher.Constraint("Vertical", 1))
sketch10.addConstraint(Sketcher.Constraint("Horizontal", 2))
sketch10.addConstraint(Sketcher.Constraint("Vertical", 3))
sketch10.addConstraint(Sketcher.Constraint("Vertical", 4))
sketch10.addConstraint(Sketcher.Constraint("Horizontal", 5))
sketch10.addConstraint(Sketcher.Constraint("Vertical", 6))
sketch10.addConstraint(Sketcher.Constraint("Horizontal", 7))
sketch10.addConstraint(Sketcher.Constraint("DistanceY", 1, 2, 1, 1, Q("27 mm")))
sketch10.addConstraint(Sketcher.Constraint("DistanceY", 4, 1, 4, 2, Q("25 mm")))
sketch10.addConstraint(Sketcher.Constraint("DistanceX", 0, 2, 0, 1, Q("9.3 mm")))
sketch10.addConstraint(Sketcher.Constraint("DistanceX", 5, 1, 5, 2, Q("7.3 mm")))
sketch10.addConstraint(Sketcher.Constraint("DistanceX", 0, 2, 4, 2, Q("1 mm")))
sketch10.addConstraint(Sketcher.Constraint("DistanceY", 4, 2, 0, 2, Q("1 mm")))
sketch10.addConstraint(Sketcher.Constraint("DistanceY", -1, 1, 0, 2, Q("20.5 mm")))
sketch10.addConstraint(Sketcher.Constraint("DistanceX", -1, 1, 0, 2, Q("14.35 mm")))
pad8 = doc.addObject("PartDesign::Pad", "Pad007")
body2.addObject(pad8)
pad8.Profile = sketch10
pad8.Length = 4

sketch11 = doc.addObject("Sketcher::SketchObject", "Sketch010")
body2.addObject(sketch11)
sketch11.AttachmentSupport = (doc.getObject("YZ_Plane001"), [""])
sketch11.MapMode = "FlatFace"
sketch11.AttachmentOffset = App.Placement(App.Vector(0, 0, -2), App.Rotation())
sketch11.addGeometry(Part.LineSegment(App.Vector(21.5, 10, 0), App.Vector(21.5, 4, 0)), False)
sketch11.addGeometry(Part.ArcOfCircle(Part.Circle(App.Vector(19, 4, 0), App.Vector(0, 0, 1), 2.5), math.radians(180), math.radians(360)), False)
sketch11.addGeometry(Part.LineSegment(App.Vector(16.5, 4, 0), App.Vector(16.5, 10, 0)), False)
sketch11.addGeometry(Part.ArcOfCircle(Part.Circle(App.Vector(19, 10, 0), App.Vector(0, 0, 1), 2.5), math.radians(0), math.radians(180)), False)
sketch11.addConstraint(Sketcher.Constraint("Tangent", 0, 2, 1, 2))
sketch11.addConstraint(Sketcher.Constraint("Tangent", 1, 1, 2, 1))
sketch11.addConstraint(Sketcher.Constraint("Tangent", 2, 2, 3, 2))
sketch11.addConstraint(Sketcher.Constraint("Tangent", 3, 1, 0, 1))
sketch11.addConstraint(Sketcher.Constraint("Vertical", 0))
sketch11.addConstraint(Sketcher.Constraint("Vertical", 2))
sketch11.addConstraint(Sketcher.Constraint("Radius", 1, Q("2.5 mm")))
sketch11.addConstraint(Sketcher.Constraint("DistanceY", 0, 2, 0, 1, Q("6 mm")))
sketch11.addConstraint(Sketcher.Constraint("DistanceX", -1, 1, 1, 3, Q("19 mm")))
sketch11.addConstraint(Sketcher.Constraint("DistanceY", -1, 1, 1, 3, Q("4 mm")))
pad9 = doc.addObject("PartDesign::Pad", "Pad008")
body2.addObject(pad9)
pad9.Profile = sketch11
pad9.Length = 8
pad9.Reversed = True

sketch12 = doc.addObject("Sketcher::SketchObject", "Sketch011")
body2.addObject(sketch12)
sketch12.AttachmentSupport = (doc.getObject("YZ_Plane001"), [""])
sketch12.MapMode = "FlatFace"
sketch12.addGeometry(Part.LineSegment(App.Vector(23, 20, 0), App.Vector(15, 20, 0)), False)
sketch12.addGeometry(Part.LineSegment(App.Vector(15, 20, 0), App.Vector(15, -6, 0)), False)
sketch12.addGeometry(Part.LineSegment(App.Vector(15, -6, 0), App.Vector(23, -6, 0)), False)
sketch12.addGeometry(Part.LineSegment(App.Vector(23, -6, 0), App.Vector(23, 20, 0)), False)
sketch12.addConstraint(Sketcher.Constraint("Coincident", 0, 2, 1, 1))
sketch12.addConstraint(Sketcher.Constraint("Coincident", 1, 2, 2, 1))
sketch12.addConstraint(Sketcher.Constraint("Coincident", 2, 2, 3, 1))
sketch12.addConstraint(Sketcher.Constraint("Coincident", 3, 2, 0, 1))
sketch12.addConstraint(Sketcher.Constraint("Horizontal", 0))
sketch12.addConstraint(Sketcher.Constraint("Vertical", 1))
sketch12.addConstraint(Sketcher.Constraint("Horizontal", 2))
sketch12.addConstraint(Sketcher.Constraint("Vertical", 3))
sketch12.addConstraint(Sketcher.Constraint("DistanceY", 1, 2, 1, 1, Q("25 mm")))
sketch12.addConstraint(Sketcher.Constraint("DistanceX", 0, 2, 0, 1, Q("7.3 mm")))
sketch12.addConstraint(Sketcher.Constraint("DistanceY", -1, 1, 0, 2, Q("19.5 mm")))
sketch12.addConstraint(Sketcher.Constraint("DistanceX", -1, 1, 0, 2, Q("15.35 mm")))
pad10 = doc.addObject("PartDesign::Pad", "Pad009")
body2.addObject(pad10)
pad10.Profile = sketch12
pad10.Length = 1.3
body3 = doc.addObject("PartDesign::Body", "Body002")

sketch13 = doc.addObject("Sketcher::SketchObject", "Sketch012")
body3.addObject(sketch13)
sketch13.AttachmentSupport = (doc.getObject("YZ_Plane002"), [""])
sketch13.MapMode = "FlatFace"
sketch13.AttachmentOffset = App.Placement(App.Vector(0, 0, 1.3), App.Rotation())
sketch13.addGeometry(Part.LineSegment(App.Vector(22, 19, 0), App.Vector(16, 19, 0)), False)
sketch13.addGeometry(Part.LineSegment(App.Vector(16, 19, 0), App.Vector(16, -5, 0)), False)
sketch13.addGeometry(Part.LineSegment(App.Vector(16, -5, 0), App.Vector(22, -5, 0)), False)
sketch13.addGeometry(Part.LineSegment(App.Vector(22, -5, 0), App.Vector(22, 19, 0)), False)
sketch13.addConstraint(Sketcher.Constraint("Coincident", 0, 2, 1, 1))
sketch13.addConstraint(Sketcher.Constraint("Coincident", 1, 2, 2, 1))
sketch13.addConstraint(Sketcher.Constraint("Coincident", 2, 2, 3, 1))
sketch13.addConstraint(Sketcher.Constraint("Coincident", 3, 2, 0, 1))
sketch13.addConstraint(Sketcher.Constraint("Horizontal", 0))
sketch13.addConstraint(Sketcher.Constraint("Vertical", 1))
sketch13.addConstraint(Sketcher.Constraint("Horizontal", 2))
sketch13.addConstraint(Sketcher.Constraint("Vertical", 3))
sketch13.addConstraint(Sketcher.Constraint("DistanceX", 0, 2, 0, 1, Q("7 mm")))
sketch13.addConstraint(Sketcher.Constraint("DistanceY", 1, 2, 1, 1, Q("24.6 mm")))
sketch13.addConstraint(Sketcher.Constraint("DistanceX", -1, 1, 0, 2, Q("15.5 mm")))
sketch13.addConstraint(Sketcher.Constraint("DistanceY", -1, 1, 0, 2, Q("19.3 mm")))
pad11 = doc.addObject("PartDesign::Pad", "Pad010")
body3.addObject(pad11)
pad11.Profile = sketch13
pad11.Length = 4.1

sketch14 = doc.addObject("Sketcher::SketchObject", "Sketch013")
body3.addObject(sketch14)
sketch14.AttachmentSupport = (doc.getObject("YZ_Plane002"), [""])
sketch14.MapMode = "FlatFace"
sketch14.AttachmentOffset = App.Placement(App.Vector(0, 0, 5.4), App.Rotation())
sketch14.addGeometry(Part.LineSegment(App.Vector(22, 23, 0), App.Vector(16, 23, 0)), False)
sketch14.addGeometry(Part.LineSegment(App.Vector(16, 23, 0), App.Vector(16, -9, 0)), False)
sketch14.addGeometry(Part.LineSegment(App.Vector(16, -9, 0), App.Vector(22, -9, 0)), False)
sketch14.addGeometry(Part.LineSegment(App.Vector(22, -9, 0), App.Vector(22, 23, 0)), False)
sketch14.addConstraint(Sketcher.Constraint("Coincident", 0, 2, 1, 1))
sketch14.addConstraint(Sketcher.Constraint("Coincident", 1, 2, 2, 1))
sketch14.addConstraint(Sketcher.Constraint("Coincident", 2, 2, 3, 1))
sketch14.addConstraint(Sketcher.Constraint("Coincident", 3, 2, 0, 1))
sketch14.addConstraint(Sketcher.Constraint("Horizontal", 0))
sketch14.addConstraint(Sketcher.Constraint("Vertical", 1))
sketch14.addConstraint(Sketcher.Constraint("Horizontal", 2))
sketch14.addConstraint(Sketcher.Constraint("Vertical", 3))
sketch14.addConstraint(Sketcher.Constraint("DistanceX", 0, 2, 0, 1, Q("7 mm")))
sketch14.addConstraint(Sketcher.Constraint("DistanceY", 1, 2, 1, 1, Q("32.7 mm")))
sketch14.addConstraint(Sketcher.Constraint("DistanceX", -1, 1, 0, 2, Q("15.5 mm")))
sketch14.addConstraint(Sketcher.Constraint("DistanceY", -1, 1, 0, 2, Q("23.35 mm")))
pad12 = doc.addObject("PartDesign::Pad", "Pad011")
body3.addObject(pad12)
pad12.Profile = sketch14
pad12.Length = 2

sketch15 = doc.addObject("Sketcher::SketchObject", "Sketch014")
body3.addObject(sketch15)
sketch15.AttachmentSupport = (doc.getObject("YZ_Plane002"), [""])
sketch15.MapMode = "FlatFace"
sketch15.AttachmentOffset = App.Placement(App.Vector(0, 0, 7.4), App.Rotation())
sketch15.addGeometry(Part.LineSegment(App.Vector(16.5, 10, 0), App.Vector(16.5, 4, 0)), False)
sketch15.addGeometry(Part.ArcOfCircle(Part.Circle(App.Vector(19, 4, 0), App.Vector(0, 0, 1), 2.5), math.radians(180), math.radians(360)), False)
sketch15.addGeometry(Part.LineSegment(App.Vector(21.5, 4, 0), App.Vector(21.5, 10, 0)), False)
sketch15.addGeometry(Part.ArcOfCircle(Part.Circle(App.Vector(19, 10, 0), App.Vector(0, 0, 1), 2.5), math.radians(0), math.radians(180)), False)
sketch15.addConstraint(Sketcher.Constraint("Tangent", 0, 2, 1, 1))
sketch15.addConstraint(Sketcher.Constraint("Tangent", 1, 2, 2, 1))
sketch15.addConstraint(Sketcher.Constraint("Tangent", 2, 2, 3, 1))
sketch15.addConstraint(Sketcher.Constraint("Tangent", 3, 2, 0, 1))
sketch15.addConstraint(Sketcher.Constraint("Vertical", 0))
sketch15.addConstraint(Sketcher.Constraint("Vertical", 2))
sketch15.addConstraint(Sketcher.Constraint("Radius", 1, Q("2.5 mm")))
sketch15.addConstraint(Sketcher.Constraint("DistanceY", 0, 2, 0, 1, Q("6 mm")))
sketch15.addConstraint(Sketcher.Constraint("DistanceX", -1, 1, 1, 3, Q("19 mm")))
sketch15.addConstraint(Sketcher.Constraint("DistanceY", -1, 1, 1, 3, Q("4 mm")))
pad13 = doc.addObject("PartDesign::Pad", "Pad012")
body3.addObject(pad13)
pad13.Profile = sketch15
pad13.Length = 8

doc.recompute()
